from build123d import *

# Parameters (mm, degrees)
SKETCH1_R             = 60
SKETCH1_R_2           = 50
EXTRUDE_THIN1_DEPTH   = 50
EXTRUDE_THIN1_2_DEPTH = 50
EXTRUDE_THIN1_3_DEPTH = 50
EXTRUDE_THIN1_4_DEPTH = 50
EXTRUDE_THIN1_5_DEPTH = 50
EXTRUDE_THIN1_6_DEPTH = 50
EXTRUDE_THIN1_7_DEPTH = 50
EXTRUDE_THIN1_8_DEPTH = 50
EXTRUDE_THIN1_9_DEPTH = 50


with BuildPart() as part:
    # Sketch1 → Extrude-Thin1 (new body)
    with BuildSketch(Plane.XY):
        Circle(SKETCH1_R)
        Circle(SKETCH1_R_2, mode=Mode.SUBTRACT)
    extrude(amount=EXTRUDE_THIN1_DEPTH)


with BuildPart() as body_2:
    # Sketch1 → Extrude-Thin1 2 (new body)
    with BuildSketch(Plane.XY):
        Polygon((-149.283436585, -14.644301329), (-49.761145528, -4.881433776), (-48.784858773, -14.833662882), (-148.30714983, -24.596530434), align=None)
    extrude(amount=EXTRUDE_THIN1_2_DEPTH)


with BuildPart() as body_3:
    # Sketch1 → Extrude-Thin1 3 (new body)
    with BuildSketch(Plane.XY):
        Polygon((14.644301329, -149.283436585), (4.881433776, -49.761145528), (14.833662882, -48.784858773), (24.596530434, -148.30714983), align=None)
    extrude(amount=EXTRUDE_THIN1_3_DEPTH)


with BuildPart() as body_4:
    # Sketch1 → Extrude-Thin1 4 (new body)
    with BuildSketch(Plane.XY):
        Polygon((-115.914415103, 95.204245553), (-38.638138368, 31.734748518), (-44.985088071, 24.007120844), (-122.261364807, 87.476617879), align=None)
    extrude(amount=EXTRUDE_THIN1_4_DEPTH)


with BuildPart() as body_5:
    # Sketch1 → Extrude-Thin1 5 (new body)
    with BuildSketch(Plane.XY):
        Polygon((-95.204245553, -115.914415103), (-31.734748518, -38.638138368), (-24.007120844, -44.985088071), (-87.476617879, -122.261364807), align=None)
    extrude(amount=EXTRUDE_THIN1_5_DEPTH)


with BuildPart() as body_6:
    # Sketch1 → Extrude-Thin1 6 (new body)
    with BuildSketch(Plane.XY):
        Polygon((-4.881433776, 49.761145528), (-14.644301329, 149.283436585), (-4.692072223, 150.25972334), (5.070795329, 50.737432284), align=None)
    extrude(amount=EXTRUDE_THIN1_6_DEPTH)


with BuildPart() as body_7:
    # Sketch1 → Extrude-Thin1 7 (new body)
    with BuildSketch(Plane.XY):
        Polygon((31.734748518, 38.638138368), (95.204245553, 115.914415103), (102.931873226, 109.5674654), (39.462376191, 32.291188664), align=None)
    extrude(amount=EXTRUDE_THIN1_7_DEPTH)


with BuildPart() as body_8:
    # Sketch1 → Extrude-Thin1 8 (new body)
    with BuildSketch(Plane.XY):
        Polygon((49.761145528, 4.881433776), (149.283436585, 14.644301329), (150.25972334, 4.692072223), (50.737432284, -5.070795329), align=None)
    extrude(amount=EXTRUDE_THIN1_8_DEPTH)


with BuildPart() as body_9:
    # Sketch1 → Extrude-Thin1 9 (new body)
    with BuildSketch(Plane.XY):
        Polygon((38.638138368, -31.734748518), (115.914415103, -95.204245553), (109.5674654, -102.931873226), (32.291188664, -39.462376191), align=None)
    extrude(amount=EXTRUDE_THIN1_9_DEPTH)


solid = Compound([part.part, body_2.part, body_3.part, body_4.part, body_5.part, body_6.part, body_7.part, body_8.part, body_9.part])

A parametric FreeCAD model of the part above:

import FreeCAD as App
import Part
import Sketcher

V = App.Vector


def add_polygon(sketch, points):
    """Adds a closed chain of lines whose ends are joined by coincident constraints."""
    first, n = sketch.GeometryCount, len(points)
    for a, b in zip(points, points[1:] + points[:1]):
        sketch.addGeometry(Part.LineSegment(App.Vector(*a, 0), App.Vector(*b, 0)), False)
    for i in range(n):
        sketch.addConstraint(Sketcher.Constraint("Coincident", first + i, 2, first + (i + 1) % n, 1))

doc = App.newDocument("Part")
body = doc.addObject("PartDesign::Body", "Body")

# Sketch on XY plane
sketch1 = body.newObject("Sketcher::SketchObject", "Sketch")
sketch1.AttachmentSupport = (doc.getObject("XY_Plane"), [""])
sketch1.MapMode = "FlatFace"
sketch1.addGeometry(Part.Circle(V(0, 0, 0), V(0, 0, 1), 60), False)
sketch1.addGeometry(Part.Circle(V(0, 0, 0), V(0, 0, 1), 50), False)
sketch1.addConstraint(Sketcher.Constraint("Coincident", 0, 3, -1, 1))
sketch1.addConstraint(Sketcher.Constraint("Coincident", 1, 3, -1, 1))
sketch1.addConstraint(Sketcher.Constraint("Diameter", 0, 120.0))
sketch1.addConstraint(Sketcher.Constraint("Diameter", 1, 100.0))
pad1 = body.newObject("PartDesign::Pad", "Pad")
pad1.Profile = sketch1
pad1.Length = 50
body2 = doc.addObject("PartDesign::Body", "Body001")

# Sketch on XY plane
sketch2 = body2.newObject("Sketcher::SketchObject", "Sketch001")
sketch2.AttachmentSupport = (doc.getObject("XY_Plane001"), [""])
sketch2.MapMode = "FlatFace"
add_polygon(sketch2, [(-50, -5), (-149, -15), (-148, -25), (-49, -15)])  # lines 0-3
sketch2.addConstraint(Sketcher.Constraint("Perpendicular", 0, 1))
sketch2.addConstraint(Sketcher.Constraint("Perpendicular", 1, 2))
sketch2.addConstraint(Sketcher.Constraint("Perpendicular", 2, 3))
sketch2.addConstraint(Sketcher.Constraint("Distance", 0, 100.0))
sketch2.addConstraint(Sketcher.Constraint("Distance", 1, 10.0))
sketch2.addConstraint(Sketcher.Constraint("DistanceY", 0, 2, -1, 1, 14.644301))
sketch2.addConstraint(Sketcher.Constraint("DistanceX", 1, 2, -1, 1, 148.30715))
sketch2.addConstraint(Sketcher.Constraint("DistanceY", 1, 2, -1, 1, 24.59653))
pad2 = body2.newObject("PartDesign::Pad", "Pad001")
pad2.Profile = sketch2
pad2.Length = 50
body3 = doc.addObject("PartDesign::Body", "Body002")

# Sketch on XY plane
sketch3 = body3.newObject("Sketcher::SketchObject", "Sketch002")
sketch3.AttachmentSupport = (doc.getObject("XY_Plane002"), [""])
sketch3.MapMode = "FlatFace"
add_polygon(sketch3, [(5, -50), (15, -149), (25, -148), (15, -49)])  # lines 0-3
sketch3.addConstraint(Sketcher.Constraint("Perpendicular", 0, 1))
sketch3.addConstraint(Sketcher.Constraint("Perpendicular", 1, 2))
sketch3.addConstraint(Sketcher.Constraint("Perpendicular", 2, 3))
sketch3.addConstraint(Sketcher.Constraint("Distance", 0, 100.0))
sketch3.addConstraint(Sketcher.Constraint("Distance", 1, 10.0))
sketch3.addConstraint(Sketcher.Constraint("DistanceX", -1, 1, 0, 2, 14.644301))
sketch3.addConstraint(Sketcher.Constraint("DistanceX", -1, 1, 1, 2, 24.59653))
sketch3.addConstraint(Sketcher.Constraint("DistanceY", 1, 2, -1, 1, 148.30715))
pad3 = body3.newObject("PartDesign::Pad", "Pad002")
pad3.Profile = sketch3
pad3.Length = 50
body4 = doc.addObject("PartDesign::Body", "Body003")

# Sketch on XY plane
sketch4 = body4.newObject("Sketcher::SketchObject", "Sketch003")
sketch4.AttachmentSupport = (doc.getObject("XY_Plane003"), [""])
sketch4.MapMode = "FlatFace"
add_polygon(sketch4, [(-39, 32), (-116, 95), (-122, 87), (-45, 24)])  # lines 0-3
sketch4.addConstraint(Sketcher.Constraint("Perpendicular", 0, 1))
sketch4.addConstraint(Sketcher.Constraint("Perpendicular", 1, 2))
sketch4.addConstraint(Sketcher.Constraint("Perpendicular", 2, 3))
sketch4.addConstraint(Sketcher.Constraint("Distance", 0, 100.0))
sketch4.addConstraint(Sketcher.Constraint("Distance", 1, 10.0))
sketch4.addConstraint(Sketcher.Constraint("DistanceX", 2, 2, -1, 1, 44.985088))
sketch4.addConstraint(Sketcher.Constraint("DistanceY", -1, 1, 2, 2, 24.007121))
sketch4.addConstraint(Sketcher.Constraint("DistanceX", 3, 2, -1, 1, 38.638138))
pad4 = body4.newObject("PartDesign::Pad", "Pad003")
pad4.Profile = sketch4
pad4.Length = 50
body5 = doc.addObject("PartDesign::Body", "Body004")

# Sketch on XY plane
sketch5 = body5.newObject("Sketcher::SketchObject", "Sketch004")
sketch5.AttachmentSupport = (doc.getObject("XY_Plane004"), [""])
sketch5.MapMode = "FlatFace"
add_polygon(sketch5, [(-32, -39), (-95, -116), (-87, -122), (-24, -45)])  # lines 0-3
sketch5.addConstraint(Sketcher.Constraint("Perpendicular", 0, 1))
sketch5.addConstraint(Sketcher.Constraint("Perpendicular", 1, 2))
sketch5.addConstraint(Sketcher.Constraint("Perpendicular", 2, 3))
sketch5.addConstraint(Sketcher.Constraint("Distance", 0, 100.0))
sketch5.addConstraint(Sketcher.Constraint("Distance", 1, 10.0))
sketch5.addConstraint(Sketcher.Constraint("DistanceX", 2, 2, -1, 1, 24.007121))
sketch5.addConstraint(Sketcher.Constraint("DistanceY", 2, 2, -1, 1, 44.985088))
sketch5.addConstraint(Sketcher.Constraint("DistanceX", 3, 2, -1, 1, 31.734749))
pad5 = body5.newObject("PartDesign::Pad", "Pad004")
pad5.Profile = sketch5
pad5.Length = 50
body6 = doc.addObject("PartDesign::Body", "Body005")

# Sketch on XY plane
sketch6 = body6.newObject("Sketcher::SketchObject", "Sketch005")
sketch6.AttachmentSupport = (doc.getObject("XY_Plane005"), [""])
sketch6.MapMode = "FlatFace"
add_polygon(sketch6, [(-15, 149), (-5, 50), (5, 51), (-5, 150)])  # lines 0-3
sketch6.addConstraint(Sketcher.Constraint("Perpendicular", 0, 1))
sketch6.addConstraint(Sketcher.Constraint("Perpendicular", 1, 2))
sketch6.addConstraint(Sketcher.Constraint("Perpendicular", 2, 3))
sketch6.addConstraint(Sketcher.Constraint("Distance", 0, 100.0))
sketch6.addConstraint(Sketcher.Constraint("Distance", 1, 10.0))
sketch6.addConstraint(Sketcher.Constraint("DistanceX", 3, 2, -1, 1, 14.644301))
sketch6.addConstraint(Sketcher.Constraint("DistanceX", 0, 2, 1, 2, 9.952229))
sketch6.addConstraint(Sketcher.Constraint("DistanceY", -1, 1, 0, 2, 49.761146))
pad6 = body6.newObject("PartDesign::Pad", "Pad005")
pad6.Profile = sketch6
pad6.Length = 50
body7 = doc.addObject("PartDesign::Body", "Body006")

# Sketch on XY plane
sketch7 = body7.newObject("Sketcher::SketchObject", "Sketch006")
sketch7.AttachmentSupport = (doc.getObject("XY_Plane006"), [""])
sketch7.MapMode = "FlatFace"
add_polygon(sketch7, [(95, 116), (32, 39), (39, 32), (103, 110)])  # lines 0-3
sketch7.addConstraint(Sketcher.Constraint("Perpendicular", 0, 1))
sketch7.addConstraint(Sketcher.Constraint("Perpendicular", 1, 2))
sketch7.addConstraint(Sketcher.Constraint("Perpendicular", 2, 3))
sketch7.addConstraint(Sketcher.Constraint("Distance", 0, 100.0))
sketch7.addConstraint(Sketcher.Constraint("Distance", 1, 10.0))
sketch7.addConstraint(Sketcher.Constraint("DistanceX", -1, 1, 0, 2, 31.734749))
sketch7.addConstraint(Sketcher.Constraint("DistanceY", -1, 1, 0, 2, 38.638138))
sketch7.addConstraint(Sketcher.Constraint("DistanceY", -1, 1, 1, 2, 32.291189))
pad7 = body7.newObject("PartDesign::Pad", "Pad006")
pad7.Profile = sketch7
pad7.Length = 50
body8 = doc.addObject("PartDesign::Body", "Body007")

# Sketch on XY plane
sketch8 = body8.newObject("Sketcher::SketchObject", "Sketch007")
sketch8.AttachmentSupport = (doc.getObject("XY_Plane007"), [""])
sketch8.MapMode = "FlatFace"
add_polygon(sketch8, [(149, 15), (50, 5), (51, -5), (150, 5)])  # lines 0-3
sketch8.addConstraint(Sketcher.Constraint("Perpendicular", 0, 1))
sketch8.addConstraint(Sketcher.Constraint("Perpendicular", 1, 2))
sketch8.addConstraint(Sketcher.Constraint("Perpendicular", 2, 3))
sketch8.addConstraint(Sketcher.Constraint("Distance", 0, 100.0))
sketch8.addConstraint(Sketcher.Constraint("Distance", 1, 10.0))
sketch8.addConstraint(Sketcher.Constraint("DistanceY", -1, 1, 3, 2, 14.644301))
sketch8.addConstraint(Sketcher.Constraint("DistanceY", 1, 2, 0, 2, 9.952229))
sketch8.addConstraint(Sketcher.Constraint("DistanceX", -1, 1, 0, 2, 49.761146))
pad8 = body8.newObject("PartDesign::Pad", "Pad007")
pad8.Profile = sketch8
pad8.Length = 50
body9 = doc.addObject("PartDesign::Body", "Body008")

# Sketch on XY plane
sketch9 = body9.newObject("Sketcher::SketchObject", "Sketch008")
sketch9.AttachmentSupport = (doc.getObject("XY_Plane008"), [""])
sketch9.MapMode = "FlatFace"
add_polygon(sketch9, [(116, -95), (39, -32), (32, -39), (110, -103)])  # lines 0-3
sketch9.addConstraint(Sketcher.Constraint("Perpendicular", 0, 1))
sketch9.addConstraint(Sketcher.Constraint("Perpendicular", 1, 2))
sketch9.addConstraint(Sketcher.Constraint("Perpendicular", 2, 3))
sketch9.addConstraint(Sketcher.Constraint("Distance", 0, 100.0))
sketch9.addConstraint(Sketcher.Constraint("Distance", 1, 10.0))
sketch9.addConstraint(Sketcher.Constraint("DistanceX", -1, 1, 0, 2, 38.638138))
sketch9.addConstraint(Sketcher.Constraint("DistanceY", 0, 2, -1, 1, 31.734749))
sketch9.addConstraint(Sketcher.Constraint("DistanceX", -1, 1, 1, 2, 32.291189))
pad9 = body9.newObject("PartDesign::Pad", "Pad008")
pad9.Profile = sketch9
pad9.Length = 50

doc.recompute()
